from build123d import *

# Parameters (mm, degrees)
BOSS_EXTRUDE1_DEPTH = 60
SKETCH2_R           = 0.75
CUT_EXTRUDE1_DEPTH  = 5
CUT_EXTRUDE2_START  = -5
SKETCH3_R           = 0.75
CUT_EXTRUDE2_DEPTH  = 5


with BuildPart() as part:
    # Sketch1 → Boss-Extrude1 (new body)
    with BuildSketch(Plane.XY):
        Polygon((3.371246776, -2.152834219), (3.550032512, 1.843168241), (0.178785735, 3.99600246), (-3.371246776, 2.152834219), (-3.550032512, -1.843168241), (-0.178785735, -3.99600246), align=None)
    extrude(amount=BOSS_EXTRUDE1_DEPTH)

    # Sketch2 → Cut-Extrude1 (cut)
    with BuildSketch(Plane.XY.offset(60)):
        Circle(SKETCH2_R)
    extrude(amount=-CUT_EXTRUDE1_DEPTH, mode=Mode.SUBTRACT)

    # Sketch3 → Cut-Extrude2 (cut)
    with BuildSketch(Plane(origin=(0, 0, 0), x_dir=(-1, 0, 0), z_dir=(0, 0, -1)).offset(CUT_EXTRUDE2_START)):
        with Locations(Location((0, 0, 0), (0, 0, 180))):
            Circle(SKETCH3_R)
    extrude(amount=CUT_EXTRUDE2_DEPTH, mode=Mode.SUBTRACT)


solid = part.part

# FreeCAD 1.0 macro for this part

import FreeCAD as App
import Part
import Sketcher
from FreeCAD import Vector
Q = App.Units.Quantity


def add_polygon(sketch, points):
    """Adds a closed chain of lines whose ends are joined by coincident constraints."""
    first, n = sketch.GeometryCount, len(points)
    for a, b in zip(points, points[1:] + points[:1]):
        sketch.addGeometry(Part.LineSegment(App.Vector(*a, 0), App.Vector(*b, 0)), False)
    for i in range(n):
        sketch.addConstraint(Sketcher.Constraint("Coincident", first + i, 2, first + (i + 1) % n, 1))

doc = App.newDocument("Part")
body = doc.addObject("PartDesign::Body", "Body")

sketch1 = doc.addObject("Sketcher::SketchObject", "Sketch")
body.addObject(sketch1)
sketch1.AttachmentSupport = (doc.XY_Plane, [""])
sketch1.MapMode = "FlatFace"
add_polygon(sketch1, [(3.4, -2.2), (3.6, 1.8), (0.2, 4), (-3.4, 2.2), (-3.6, -1.8), (-0.2, -4)])
sketch1.addConstraint(Sketcher.Constraint("Symmetric", 0, 2, 3, 2, -1, 1))
sketch1.addConstraint(Sketcher.Constraint("Symmetric", 1, 2, 4, 2, -1, 1))
sketch1.addConstraint(Sketcher.Constraint("Symmetric", 2, 2, 5, 2, -1, 1))
sketch1.addConstraint(Sketcher.Constraint("Equal", 0, 1))
sketch1.addConstraint(Sketcher.Constraint("Equal", 1, 2))
sketch1.addConstraint(Sketcher.Constraint("Distance", 0, Q("4 mm")))
sketch1.addConstraint(Sketcher.Constraint("DistanceY", -1, 1, 0, 2, Q("1.843168 mm")))
sketch1.addConstraint(Sketcher.Constraint("DistanceY", 2, 2, 1, 2, Q("1.843168 mm")))
sketch1.addConstraint(Sketcher.Constraint("DistanceX", 2, 2, 0, 2, Q("6.921279 mm")))
pad1 = doc.addObject("PartDesign::Pad", "Pad")
body.addObject(pad1)
pad1.Profile = sketch1
pad1.Length = 60

sketch2 = doc.addObject("Sketcher::SketchObject", "Sketch001")
body.addObject(sketch2)
sketch2.AttachmentSupport = (doc.XY_Plane, [""])
sketch2.MapMode = "FlatFace"
sketch2.AttachmentOffset = App.Placement(Vector(0, 0, 60), App.Rotation())
sketch2.addGeometry(Part.Circle(Vector(0, 0, 0), Vector(0, 0, 1), 0.8), False)
sketch2.addConstraint(Sketcher.Constraint("Coincident", 0, 3, -1, 1))
sketch2.addConstraint(Sketcher.Constraint("Diameter", 0, Q("1.5 mm")))
pocket1 = doc.addObject("PartDesign::Pocket", "Pocket")
body.addObject(pocket1)
pocket1.Profile = sketch2
pocket1.Length = 5

sketch3 = doc.addObject("Sketcher::SketchObject", "Sketch002")
body.addObject(sketch3)
sketch3.AttachmentSupport = (doc.XY_Plane, [""])
sketch3.MapMode = "FlatFace"
sketch3.AttachmentOffset = App.Placement(Vector(0, 0, 5), App.Rotation())
sketch3.addGeometry(Part.Circle(Vector(0, 0, 0), Vector(0, 0, 1), 0.8), False)
sketch3.addConstraint(Sketcher.Constraint("Coincident", 0, 3, -1, 1))
sketch3.addConstraint(Sketcher.Constraint("Diameter", 0, Q("1.5 mm")))
pocket2 = doc.addObject("PartDesign::Pocket", "Pocket001")
body.addObject(pocket2)
pocket2.Profile = sketch3
pocket2.Length = 5

doc.recompute()
